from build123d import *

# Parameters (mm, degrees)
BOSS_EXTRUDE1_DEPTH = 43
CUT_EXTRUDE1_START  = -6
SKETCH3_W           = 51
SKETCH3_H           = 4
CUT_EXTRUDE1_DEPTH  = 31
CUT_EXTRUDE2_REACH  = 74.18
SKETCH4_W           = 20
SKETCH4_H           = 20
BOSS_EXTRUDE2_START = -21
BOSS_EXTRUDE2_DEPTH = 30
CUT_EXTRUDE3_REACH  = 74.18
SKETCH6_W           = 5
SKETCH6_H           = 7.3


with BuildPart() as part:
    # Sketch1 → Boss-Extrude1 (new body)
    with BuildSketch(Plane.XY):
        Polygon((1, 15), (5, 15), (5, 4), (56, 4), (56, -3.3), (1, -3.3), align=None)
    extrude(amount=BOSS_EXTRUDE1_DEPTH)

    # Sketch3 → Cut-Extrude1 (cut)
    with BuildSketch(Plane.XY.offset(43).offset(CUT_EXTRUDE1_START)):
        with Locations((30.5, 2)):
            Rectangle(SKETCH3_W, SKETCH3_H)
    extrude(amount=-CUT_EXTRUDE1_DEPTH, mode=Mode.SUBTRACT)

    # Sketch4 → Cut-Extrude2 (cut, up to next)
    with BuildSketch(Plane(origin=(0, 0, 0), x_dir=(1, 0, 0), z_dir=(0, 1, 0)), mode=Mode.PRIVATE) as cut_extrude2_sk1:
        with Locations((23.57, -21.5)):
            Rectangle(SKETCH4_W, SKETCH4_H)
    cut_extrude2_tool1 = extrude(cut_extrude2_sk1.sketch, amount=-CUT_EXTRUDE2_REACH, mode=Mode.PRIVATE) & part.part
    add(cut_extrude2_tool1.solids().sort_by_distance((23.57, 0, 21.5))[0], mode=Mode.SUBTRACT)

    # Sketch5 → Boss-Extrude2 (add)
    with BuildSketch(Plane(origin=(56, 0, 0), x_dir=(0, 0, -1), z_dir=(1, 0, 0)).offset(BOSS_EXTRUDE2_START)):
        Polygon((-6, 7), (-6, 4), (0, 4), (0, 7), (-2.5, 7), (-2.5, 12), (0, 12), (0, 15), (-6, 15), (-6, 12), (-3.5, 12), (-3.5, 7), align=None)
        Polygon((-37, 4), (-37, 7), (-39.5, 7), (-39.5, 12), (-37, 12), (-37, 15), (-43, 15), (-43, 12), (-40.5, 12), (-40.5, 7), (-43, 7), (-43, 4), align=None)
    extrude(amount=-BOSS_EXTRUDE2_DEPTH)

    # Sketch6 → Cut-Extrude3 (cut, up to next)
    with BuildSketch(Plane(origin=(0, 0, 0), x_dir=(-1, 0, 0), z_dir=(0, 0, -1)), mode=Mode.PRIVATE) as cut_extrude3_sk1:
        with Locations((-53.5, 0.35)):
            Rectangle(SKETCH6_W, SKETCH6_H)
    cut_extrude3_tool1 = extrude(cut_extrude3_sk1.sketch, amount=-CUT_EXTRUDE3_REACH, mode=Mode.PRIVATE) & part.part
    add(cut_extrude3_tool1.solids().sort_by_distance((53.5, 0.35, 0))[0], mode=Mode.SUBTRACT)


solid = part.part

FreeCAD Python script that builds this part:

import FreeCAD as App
import Part
import Sketcher
Q = App.Units.Quantity

doc = App.newDocument("Part")
body = doc.addObject("PartDesign::Body", "Body")

sketch1 = body.newObject("Sketcher::SketchObject", "Sketch")
sketch1.AttachmentSupport = (doc.getObject("XY_Plane"), [""])
sketch1.MapMode = "FlatFace"
sketch1.addGeometry([
    Part.LineSegment(App.Vector(5, 15, 0), App.Vector(1, 15, 0)),
    Part.LineSegment(App.Vector(1, 15, 0), App.Vector(1, -3.3, 0)),
    Part.LineSegment(App.Vector(1, -3.3, 0), App.Vector(56, -3.3, 0)),
    Part.LineSegment(App.Vector(56, -3.3, 0), App.Vector(56, 4, 0)),
    Part.LineSegment(App.Vector(56, 4, 0), App.Vector(5, 4, 0)),
    Part.LineSegment(App.Vector(5, 4, 0), App.Vector(5, 15, 0)),
], False)
sketch1.addConstraint([
    Sketcher.Constraint("Coincident", 0, 2, 1, 1),
    Sketcher.Constraint("Coincident", 1, 2, 2, 1),
    Sketcher.Constraint("Coincident", 2, 2, 3, 1),
    Sketcher.Constraint("Coincident", 3, 2, 4, 1),
    Sketcher.Constraint("Coincident", 4, 2, 5, 1),
    Sketcher.Constraint("Coincident", 5, 2, 0, 1),
    Sketcher.Constraint("Horizontal", 0),
    Sketcher.Constraint("Vertical", 1),
    Sketcher.Constraint("Horizontal", 2),
    Sketcher.Constraint("Vertical", 3),
    Sketcher.Constraint("Horizontal", 4),
    Sketcher.Constraint("Vertical", 5),
    Sketcher.Constraint("DistanceX", 0, 2, 0, 1, Q("4 mm")),
    Sketcher.Constraint("DistanceX", 2, 1, 2, 2, Q("55 mm")),
    Sketcher.Constraint("DistanceY", 5, 1, 5, 2, Q("11 mm")),
    Sketcher.Constraint("DistanceY", 1, 2, 1, 1, Q("18.3 mm")),
    Sketcher.Constraint("DistanceX", -1, 1, 0, 2, Q("1 mm")),
    Sketcher.Constraint("DistanceY", -1, 1, 0, 2, Q("15 mm")),
])
pad1 = body.newObject("PartDesign::Pad", "Pad")
pad1.Profile = sketch1
pad1.Length = 43

sketch2 = body.newObject("Sketcher::SketchObject", "Sketch001")
sketch2.AttachmentSupport = (doc.getObject("XY_Plane"), [""])
sketch2.MapMode = "FlatFace"
sketch2.AttachmentOffset = App.Placement(App.Vector(0, 0, 37), App.Rotation())
sketch2.addGeometry([
    Part.LineSegment(App.Vector(5, 4, 0), App.Vector(5, 0, 0)),
    Part.LineSegment(App.Vector(5, 0, 0), App.Vector(56, 0, 0)),
    Part.LineSegment(App.Vector(56, 0, 0), App.Vector(56, 4, 0)),
    Part.LineSegment(App.Vector(56, 4, 0), App.Vector(5, 4, 0)),
], False)
sketch2.addConstraint([
    Sketcher.Constraint("Coincident", 0, 2, 1, 1),
    Sketcher.Constraint("Coincident", 1, 2, 2, 1),
    Sketcher.Constraint("Coincident", 2, 2, 3, 1),
    Sketcher.Constraint("Coincident", 3, 2, 0, 1),
    Sketcher.Constraint("Vertical", 0),
    Sketcher.Constraint("Horizontal", 1),
    Sketcher.Constraint("Vertical", 2),
    Sketcher.Constraint("Horizontal", 3),
    Sketcher.Constraint("PointOnObject", 0, 2, -1),
    Sketcher.Constraint("DistanceX", 1, 1, 1, 2, Q("51 mm")),
    Sketcher.Constraint("DistanceY", 0, 2, 0, 1, Q("4 mm")),
    Sketcher.Constraint("DistanceX", -1, 1, 0, 2, Q("5 mm")),
])
pocket1 = body.newObject("PartDesign::Pocket", "Pocket")
pocket1.Profile = sketch2
pocket1.Length = 31

sketch3 = body.newObject("Sketcher::SketchObject", "Sketch002")
sketch3.AttachmentSupport = (doc.getObject("XZ_Plane"), [""])
sketch3.MapMode = "FlatFace"
sketch3.addGeometry([
    Part.LineSegment(App.Vector(14, 12, 0), App.Vector(14, 32, 0)),
    Part.LineSegment(App.Vector(14, 32, 0), App.Vector(34, 32, 0)),
    Part.LineSegment(App.Vector(34, 32, 0), App.Vector(34, 12, 0)),
    Part.LineSegment(App.Vector(34, 12, 0), App.Vector(14, 12, 0)),
], False)
sketch3.addConstraint([
    Sketcher.Constraint("Coincident", 0, 2, 1, 1),
    Sketcher.Constraint("Coincident", 1, 2, 2, 1),
    Sketcher.Constraint("Coincident", 2, 2, 3, 1),
    Sketcher.Constraint("Coincident", 3, 2, 0, 1),
    Sketcher.Constraint("Vertical", 0),
    Sketcher.Constraint("Horizontal", 1),
    Sketcher.Constraint("Vertical", 2),
    Sketcher.Constraint("Horizontal", 3),
    Sketcher.Constraint("Equal", 3, 0),
    Sketcher.Constraint("DistanceX", 1, 1, 1, 2, Q("20 mm")),
    Sketcher.Constraint("DistanceY", -1, 1, 0, 2, Q("31.5 mm")),
    Sketcher.Constraint("DistanceX", -1, 1, 0, 2, Q("13.57 mm")),
])
pocket2 = body.newObject("PartDesign::Pocket", "Pocket001")
pocket2.Profile = sketch3
pocket2.Type = "UpToFirst"
pocket2.Reversed = True

sketch4 = body.newObject("Sketcher::SketchObject", "Sketch003")
sketch4.AttachmentSupport = (doc.getObject("YZ_Plane"), [""])
sketch4.MapMode = "FlatFace"
sketch4.AttachmentOffset = App.Placement(App.Vector(0, 0, 35), App.Rotation())
sketch4.addGeometry([
    Part.LineSegment(App.Vector(7, 6, 0), App.Vector(4, 6, 0)),
    Part.LineSegment(App.Vector(4, 6, 0), App.Vector(4, 0, 0)),
    Part.LineSegment(App.Vector(4, 0, 0), App.Vector(7, 0, 0)),
    Part.LineSegment(App.Vector(7, 0, 0), App.Vector(7, 2.5, 0)),
    Part.LineSegment(App.Vector(7, 2.5, 0), App.Vector(12, 2.5, 0)),
    Part.LineSegment(App.Vector(12, 2.5, 0), App.Vector(12, 0, 0)),
    Part.LineSegment(App.Vector(12, 0, 0), App.Vector(15, 0, 0)),
    Part.LineSegment(App.Vector(15, 0, 0), App.Vector(15, 6, 0)),
    Part.LineSegment(App.Vector(15, 6, 0), App.Vector(12, 6, 0)),
    Part.LineSegment(App.Vector(12, 6, 0), App.Vector(12, 3.5, 0)),
    Part.LineSegment(App.Vector(12, 3.5, 0), App.Vector(7, 3.5, 0)),
    Part.LineSegment(App.Vector(7, 3.5, 0), App.Vector(7, 6, 0)),
    Part.LineSegment(App.Vector(4, 37, 0), App.Vector(7, 37, 0)),
    Part.LineSegment(App.Vector(7, 37, 0), App.Vector(7, 39.5, 0)),
    Part.LineSegment(App.Vector(7, 39.5, 0), App.Vector(12, 39.5, 0)),
    Part.LineSegment(App.Vector(12, 39.5, 0), App.Vector(12, 37, 0)),
    Part.LineSegment(App.Vector(12, 37, 0), App.Vector(15, 37, 0)),
    Part.LineSegment(App.Vector(15, 37, 0), App.Vector(15, 43, 0)),
    Part.LineSegment(App.Vector(15, 43, 0), App.Vector(12, 43, 0)),
    Part.LineSegment(App.Vector(12, 43, 0), App.Vector(12, 40.5, 0)),
    Part.LineSegment(App.Vector(12, 40.5, 0), App.Vector(7, 40.5, 0)),
    Part.LineSegment(App.Vector(7, 40.5, 0), App.Vector(7, 43, 0)),
    Part.LineSegment(App.Vector(7, 43, 0), App.Vector(4, 43, 0)),
    Part.LineSegment(App.Vector(4, 43, 0), App.Vector(4, 37, 0)),
], False)
sketch4.addConstraint([
    Sketcher.Constraint("Coincident", 0, 2, 1, 1),
    Sketcher.Constraint("Coincident", 1, 2, 2, 1),
    Sketcher.Constraint("Coincident", 2, 2, 3, 1),
    Sketcher.Constraint("Coincident", 3, 2, 4, 1),
    Sketcher.Constraint("Coincident", 4, 2, 5, 1),
    Sketcher.Constraint("Coincident", 5, 2, 6, 1),
    Sketcher.Constraint("Coincident", 6, 2, 7, 1),
    Sketcher.Constraint("Coincident", 7, 2, 8, 1),
    Sketcher.Constraint("Coincident", 8, 2, 9, 1),
    Sketcher.Constraint("Coincident", 9, 2, 10, 1),
    Sketcher.Constraint("Coincident", 10, 2, 11, 1),
    Sketcher.Constraint("Coincident", 11, 2, 0, 1),
    Sketcher.Constraint("Coincident", 12, 2, 13, 1),
    Sketcher.Constraint("Coincident", 13, 2, 14, 1),
    Sketcher.Constraint("Coincident", 14, 2, 15, 1),
    Sketcher.Constraint("Coincident", 15, 2, 16, 1),
    Sketcher.Constraint("Coincident", 16, 2, 17, 1),
    Sketcher.Constraint("Coincident", 17, 2, 18, 1),
    Sketcher.Constraint("Coincident", 18, 2, 19, 1),
    Sketcher.Constraint("Coincident", 19, 2, 20, 1),
    Sketcher.Constraint("Coincident", 20, 2, 21, 1),
    Sketcher.Constraint("Coincident", 21, 2, 22, 1),
    Sketcher.Constraint("Coincident", 22, 2, 23, 1),
    Sketcher.Constraint("Coincident", 23, 2, 12, 1),
    Sketcher.Constraint("Horizontal", 0),
    Sketcher.Constraint("Vertical", 1),
    Sketcher.Constraint("Horizontal", 2),
    Sketcher.Constraint("Vertical", 3),
    Sketcher.Constraint("Horizontal", 4),
    Sketcher.Constraint("Vertical", 5),
    Sketcher.Constraint("Horizontal", 6),
    Sketcher.Constraint("Vertical", 7),
    Sketcher.Constraint("Horizontal", 8),
    Sketcher.Constraint("Vertical", 9),
    Sketcher.Constraint("Horizontal", 10),
    Sketcher.Constraint("Vertical", 11),
    Sketcher.Constraint("Horizontal", 12),
    Sketcher.Constraint("Vertical", 13),
    Sketcher.Constraint("Horizontal", 14),
    Sketcher.Constraint("Vertical", 15),
    Sketcher.Constraint("Horizontal", 16),
    Sketcher.Constraint("Vertical", 17),
    Sketcher.Constraint("Horizontal", 18),
    Sketcher.Constraint("Vertical", 19),
    Sketcher.Constraint("Horizontal", 20),
    Sketcher.Constraint("Vertical", 21),
    Sketcher.Constraint("Horizontal", 22),
    Sketcher.Constraint("Vertical", 23),
    Sketcher.Constraint("PointOnObject", 1, 2, -1),
    Sketcher.Constraint("PointOnObject", 5, 2, -1),
    Sketcher.Constraint("Horizontal", 0, 2, 7, 2),
    Sketcher.Constraint("Horizontal", 12, 2, 15, 2),
    Sketcher.Constraint("Horizontal", 18, 2, 21, 2),
    Sketcher.Constraint("Vertical", 5, 2, 8, 2),
    Sketcher.Constraint("Vertical", 3, 2, 10, 2),
    Sketcher.Constraint("Vertical", 11, 2, 12, 2),
    Sketcher.Constraint("Vertical", 9, 2, 14, 2),
    Sketcher.Constraint("Vertical", 7, 2, 16, 2),
    Sketcher.Constraint("Vertical", 15, 2, 18, 2),
    Sketcher.Constraint("Vertical", 13, 2, 20, 2),
    Sketcher.Constraint("Vertical", 1, 2, 22, 2),
    Sketcher.Constraint("Equal", 2, 6),
    Sketcher.Constraint("Equal", 5, 9),
    Sketcher.Constraint("Equal", 11, 13),
    Sketcher.Constraint("Equal", 7, 17),
    Sketcher.Constraint("Equal", 15, 19),
    Sketcher.Constraint("DistanceX", 0, 2, 0, 1, Q("3 mm")),
    Sketcher.Constraint("DistanceX", 4, 1, 4, 2, Q("5 mm")),
    Sketcher.Constraint("DistanceY", 1, 2, 1, 1, Q("6 mm")),
    Sketcher.Constraint("DistanceY", 3, 1, 3, 2, Q("2.5 mm")),
    Sketcher.Constraint("DistanceX", -1, 1, 0, 2, Q("4 mm")),
    Sketcher.Constraint("DistanceY", -1, 1, 12, 2, Q("37 mm")),
])
pad2 = body.newObject("PartDesign::Pad", "Pad001")
pad2.Profile = sketch4
pad2.Length = 30
pad2.Reversed = True

sketch5 = body.newObject("Sketcher::SketchObject", "Sketch004")
sketch5.AttachmentSupport = (doc.getObject("XY_Plane"), [""])
sketch5.MapMode = "FlatFace"
sketch5.addGeometry([
    Part.LineSegment(App.Vector(56, 4, 0), App.Vector(56, -3, 0)),
    Part.LineSegment(App.Vector(56, -3, 0), App.Vector(51, -3, 0)),
    Part.LineSegment(App.Vector(51, -3, 0), App.Vector(51, 4, 0)),
    Part.LineSegment(App.Vector(51, 4, 0), App.Vector(56, 4, 0)),
], False)
sketch5.addConstraint([
    Sketcher.Constraint("Coincident", 0, 2, 1, 1),
    Sketcher.Constraint("Coincident", 1, 2, 2, 1),
    Sketcher.Constraint("Coincident", 2, 2, 3, 1),
    Sketcher.Constraint("Coincident", 3, 2, 0, 1),
    Sketcher.Constraint("Vertical", 0),
    Sketcher.Constraint("Horizontal", 1),
    Sketcher.Constraint("Vertical", 2),
    Sketcher.Constraint("Horizontal", 3),
    Sketcher.Constraint("DistanceX", 1, 2, 1, 1, Q("5 mm")),
    Sketcher.Constraint("DistanceY", 0, 2, 0, 1, Q("7.3 mm")),
    Sketcher.Constraint("DistanceX", -1, 1, 0, 2, Q("56 mm")),
    Sketcher.Constraint("DistanceY", -1, 1, 2, 2, Q("4 mm")),
])
pocket3 = body.newObject("PartDesign::Pocket", "Pocket002")
pocket3.Profile = sketch5
pocket3.Length = 43
pocket3.Reversed = True

doc.recompute()
